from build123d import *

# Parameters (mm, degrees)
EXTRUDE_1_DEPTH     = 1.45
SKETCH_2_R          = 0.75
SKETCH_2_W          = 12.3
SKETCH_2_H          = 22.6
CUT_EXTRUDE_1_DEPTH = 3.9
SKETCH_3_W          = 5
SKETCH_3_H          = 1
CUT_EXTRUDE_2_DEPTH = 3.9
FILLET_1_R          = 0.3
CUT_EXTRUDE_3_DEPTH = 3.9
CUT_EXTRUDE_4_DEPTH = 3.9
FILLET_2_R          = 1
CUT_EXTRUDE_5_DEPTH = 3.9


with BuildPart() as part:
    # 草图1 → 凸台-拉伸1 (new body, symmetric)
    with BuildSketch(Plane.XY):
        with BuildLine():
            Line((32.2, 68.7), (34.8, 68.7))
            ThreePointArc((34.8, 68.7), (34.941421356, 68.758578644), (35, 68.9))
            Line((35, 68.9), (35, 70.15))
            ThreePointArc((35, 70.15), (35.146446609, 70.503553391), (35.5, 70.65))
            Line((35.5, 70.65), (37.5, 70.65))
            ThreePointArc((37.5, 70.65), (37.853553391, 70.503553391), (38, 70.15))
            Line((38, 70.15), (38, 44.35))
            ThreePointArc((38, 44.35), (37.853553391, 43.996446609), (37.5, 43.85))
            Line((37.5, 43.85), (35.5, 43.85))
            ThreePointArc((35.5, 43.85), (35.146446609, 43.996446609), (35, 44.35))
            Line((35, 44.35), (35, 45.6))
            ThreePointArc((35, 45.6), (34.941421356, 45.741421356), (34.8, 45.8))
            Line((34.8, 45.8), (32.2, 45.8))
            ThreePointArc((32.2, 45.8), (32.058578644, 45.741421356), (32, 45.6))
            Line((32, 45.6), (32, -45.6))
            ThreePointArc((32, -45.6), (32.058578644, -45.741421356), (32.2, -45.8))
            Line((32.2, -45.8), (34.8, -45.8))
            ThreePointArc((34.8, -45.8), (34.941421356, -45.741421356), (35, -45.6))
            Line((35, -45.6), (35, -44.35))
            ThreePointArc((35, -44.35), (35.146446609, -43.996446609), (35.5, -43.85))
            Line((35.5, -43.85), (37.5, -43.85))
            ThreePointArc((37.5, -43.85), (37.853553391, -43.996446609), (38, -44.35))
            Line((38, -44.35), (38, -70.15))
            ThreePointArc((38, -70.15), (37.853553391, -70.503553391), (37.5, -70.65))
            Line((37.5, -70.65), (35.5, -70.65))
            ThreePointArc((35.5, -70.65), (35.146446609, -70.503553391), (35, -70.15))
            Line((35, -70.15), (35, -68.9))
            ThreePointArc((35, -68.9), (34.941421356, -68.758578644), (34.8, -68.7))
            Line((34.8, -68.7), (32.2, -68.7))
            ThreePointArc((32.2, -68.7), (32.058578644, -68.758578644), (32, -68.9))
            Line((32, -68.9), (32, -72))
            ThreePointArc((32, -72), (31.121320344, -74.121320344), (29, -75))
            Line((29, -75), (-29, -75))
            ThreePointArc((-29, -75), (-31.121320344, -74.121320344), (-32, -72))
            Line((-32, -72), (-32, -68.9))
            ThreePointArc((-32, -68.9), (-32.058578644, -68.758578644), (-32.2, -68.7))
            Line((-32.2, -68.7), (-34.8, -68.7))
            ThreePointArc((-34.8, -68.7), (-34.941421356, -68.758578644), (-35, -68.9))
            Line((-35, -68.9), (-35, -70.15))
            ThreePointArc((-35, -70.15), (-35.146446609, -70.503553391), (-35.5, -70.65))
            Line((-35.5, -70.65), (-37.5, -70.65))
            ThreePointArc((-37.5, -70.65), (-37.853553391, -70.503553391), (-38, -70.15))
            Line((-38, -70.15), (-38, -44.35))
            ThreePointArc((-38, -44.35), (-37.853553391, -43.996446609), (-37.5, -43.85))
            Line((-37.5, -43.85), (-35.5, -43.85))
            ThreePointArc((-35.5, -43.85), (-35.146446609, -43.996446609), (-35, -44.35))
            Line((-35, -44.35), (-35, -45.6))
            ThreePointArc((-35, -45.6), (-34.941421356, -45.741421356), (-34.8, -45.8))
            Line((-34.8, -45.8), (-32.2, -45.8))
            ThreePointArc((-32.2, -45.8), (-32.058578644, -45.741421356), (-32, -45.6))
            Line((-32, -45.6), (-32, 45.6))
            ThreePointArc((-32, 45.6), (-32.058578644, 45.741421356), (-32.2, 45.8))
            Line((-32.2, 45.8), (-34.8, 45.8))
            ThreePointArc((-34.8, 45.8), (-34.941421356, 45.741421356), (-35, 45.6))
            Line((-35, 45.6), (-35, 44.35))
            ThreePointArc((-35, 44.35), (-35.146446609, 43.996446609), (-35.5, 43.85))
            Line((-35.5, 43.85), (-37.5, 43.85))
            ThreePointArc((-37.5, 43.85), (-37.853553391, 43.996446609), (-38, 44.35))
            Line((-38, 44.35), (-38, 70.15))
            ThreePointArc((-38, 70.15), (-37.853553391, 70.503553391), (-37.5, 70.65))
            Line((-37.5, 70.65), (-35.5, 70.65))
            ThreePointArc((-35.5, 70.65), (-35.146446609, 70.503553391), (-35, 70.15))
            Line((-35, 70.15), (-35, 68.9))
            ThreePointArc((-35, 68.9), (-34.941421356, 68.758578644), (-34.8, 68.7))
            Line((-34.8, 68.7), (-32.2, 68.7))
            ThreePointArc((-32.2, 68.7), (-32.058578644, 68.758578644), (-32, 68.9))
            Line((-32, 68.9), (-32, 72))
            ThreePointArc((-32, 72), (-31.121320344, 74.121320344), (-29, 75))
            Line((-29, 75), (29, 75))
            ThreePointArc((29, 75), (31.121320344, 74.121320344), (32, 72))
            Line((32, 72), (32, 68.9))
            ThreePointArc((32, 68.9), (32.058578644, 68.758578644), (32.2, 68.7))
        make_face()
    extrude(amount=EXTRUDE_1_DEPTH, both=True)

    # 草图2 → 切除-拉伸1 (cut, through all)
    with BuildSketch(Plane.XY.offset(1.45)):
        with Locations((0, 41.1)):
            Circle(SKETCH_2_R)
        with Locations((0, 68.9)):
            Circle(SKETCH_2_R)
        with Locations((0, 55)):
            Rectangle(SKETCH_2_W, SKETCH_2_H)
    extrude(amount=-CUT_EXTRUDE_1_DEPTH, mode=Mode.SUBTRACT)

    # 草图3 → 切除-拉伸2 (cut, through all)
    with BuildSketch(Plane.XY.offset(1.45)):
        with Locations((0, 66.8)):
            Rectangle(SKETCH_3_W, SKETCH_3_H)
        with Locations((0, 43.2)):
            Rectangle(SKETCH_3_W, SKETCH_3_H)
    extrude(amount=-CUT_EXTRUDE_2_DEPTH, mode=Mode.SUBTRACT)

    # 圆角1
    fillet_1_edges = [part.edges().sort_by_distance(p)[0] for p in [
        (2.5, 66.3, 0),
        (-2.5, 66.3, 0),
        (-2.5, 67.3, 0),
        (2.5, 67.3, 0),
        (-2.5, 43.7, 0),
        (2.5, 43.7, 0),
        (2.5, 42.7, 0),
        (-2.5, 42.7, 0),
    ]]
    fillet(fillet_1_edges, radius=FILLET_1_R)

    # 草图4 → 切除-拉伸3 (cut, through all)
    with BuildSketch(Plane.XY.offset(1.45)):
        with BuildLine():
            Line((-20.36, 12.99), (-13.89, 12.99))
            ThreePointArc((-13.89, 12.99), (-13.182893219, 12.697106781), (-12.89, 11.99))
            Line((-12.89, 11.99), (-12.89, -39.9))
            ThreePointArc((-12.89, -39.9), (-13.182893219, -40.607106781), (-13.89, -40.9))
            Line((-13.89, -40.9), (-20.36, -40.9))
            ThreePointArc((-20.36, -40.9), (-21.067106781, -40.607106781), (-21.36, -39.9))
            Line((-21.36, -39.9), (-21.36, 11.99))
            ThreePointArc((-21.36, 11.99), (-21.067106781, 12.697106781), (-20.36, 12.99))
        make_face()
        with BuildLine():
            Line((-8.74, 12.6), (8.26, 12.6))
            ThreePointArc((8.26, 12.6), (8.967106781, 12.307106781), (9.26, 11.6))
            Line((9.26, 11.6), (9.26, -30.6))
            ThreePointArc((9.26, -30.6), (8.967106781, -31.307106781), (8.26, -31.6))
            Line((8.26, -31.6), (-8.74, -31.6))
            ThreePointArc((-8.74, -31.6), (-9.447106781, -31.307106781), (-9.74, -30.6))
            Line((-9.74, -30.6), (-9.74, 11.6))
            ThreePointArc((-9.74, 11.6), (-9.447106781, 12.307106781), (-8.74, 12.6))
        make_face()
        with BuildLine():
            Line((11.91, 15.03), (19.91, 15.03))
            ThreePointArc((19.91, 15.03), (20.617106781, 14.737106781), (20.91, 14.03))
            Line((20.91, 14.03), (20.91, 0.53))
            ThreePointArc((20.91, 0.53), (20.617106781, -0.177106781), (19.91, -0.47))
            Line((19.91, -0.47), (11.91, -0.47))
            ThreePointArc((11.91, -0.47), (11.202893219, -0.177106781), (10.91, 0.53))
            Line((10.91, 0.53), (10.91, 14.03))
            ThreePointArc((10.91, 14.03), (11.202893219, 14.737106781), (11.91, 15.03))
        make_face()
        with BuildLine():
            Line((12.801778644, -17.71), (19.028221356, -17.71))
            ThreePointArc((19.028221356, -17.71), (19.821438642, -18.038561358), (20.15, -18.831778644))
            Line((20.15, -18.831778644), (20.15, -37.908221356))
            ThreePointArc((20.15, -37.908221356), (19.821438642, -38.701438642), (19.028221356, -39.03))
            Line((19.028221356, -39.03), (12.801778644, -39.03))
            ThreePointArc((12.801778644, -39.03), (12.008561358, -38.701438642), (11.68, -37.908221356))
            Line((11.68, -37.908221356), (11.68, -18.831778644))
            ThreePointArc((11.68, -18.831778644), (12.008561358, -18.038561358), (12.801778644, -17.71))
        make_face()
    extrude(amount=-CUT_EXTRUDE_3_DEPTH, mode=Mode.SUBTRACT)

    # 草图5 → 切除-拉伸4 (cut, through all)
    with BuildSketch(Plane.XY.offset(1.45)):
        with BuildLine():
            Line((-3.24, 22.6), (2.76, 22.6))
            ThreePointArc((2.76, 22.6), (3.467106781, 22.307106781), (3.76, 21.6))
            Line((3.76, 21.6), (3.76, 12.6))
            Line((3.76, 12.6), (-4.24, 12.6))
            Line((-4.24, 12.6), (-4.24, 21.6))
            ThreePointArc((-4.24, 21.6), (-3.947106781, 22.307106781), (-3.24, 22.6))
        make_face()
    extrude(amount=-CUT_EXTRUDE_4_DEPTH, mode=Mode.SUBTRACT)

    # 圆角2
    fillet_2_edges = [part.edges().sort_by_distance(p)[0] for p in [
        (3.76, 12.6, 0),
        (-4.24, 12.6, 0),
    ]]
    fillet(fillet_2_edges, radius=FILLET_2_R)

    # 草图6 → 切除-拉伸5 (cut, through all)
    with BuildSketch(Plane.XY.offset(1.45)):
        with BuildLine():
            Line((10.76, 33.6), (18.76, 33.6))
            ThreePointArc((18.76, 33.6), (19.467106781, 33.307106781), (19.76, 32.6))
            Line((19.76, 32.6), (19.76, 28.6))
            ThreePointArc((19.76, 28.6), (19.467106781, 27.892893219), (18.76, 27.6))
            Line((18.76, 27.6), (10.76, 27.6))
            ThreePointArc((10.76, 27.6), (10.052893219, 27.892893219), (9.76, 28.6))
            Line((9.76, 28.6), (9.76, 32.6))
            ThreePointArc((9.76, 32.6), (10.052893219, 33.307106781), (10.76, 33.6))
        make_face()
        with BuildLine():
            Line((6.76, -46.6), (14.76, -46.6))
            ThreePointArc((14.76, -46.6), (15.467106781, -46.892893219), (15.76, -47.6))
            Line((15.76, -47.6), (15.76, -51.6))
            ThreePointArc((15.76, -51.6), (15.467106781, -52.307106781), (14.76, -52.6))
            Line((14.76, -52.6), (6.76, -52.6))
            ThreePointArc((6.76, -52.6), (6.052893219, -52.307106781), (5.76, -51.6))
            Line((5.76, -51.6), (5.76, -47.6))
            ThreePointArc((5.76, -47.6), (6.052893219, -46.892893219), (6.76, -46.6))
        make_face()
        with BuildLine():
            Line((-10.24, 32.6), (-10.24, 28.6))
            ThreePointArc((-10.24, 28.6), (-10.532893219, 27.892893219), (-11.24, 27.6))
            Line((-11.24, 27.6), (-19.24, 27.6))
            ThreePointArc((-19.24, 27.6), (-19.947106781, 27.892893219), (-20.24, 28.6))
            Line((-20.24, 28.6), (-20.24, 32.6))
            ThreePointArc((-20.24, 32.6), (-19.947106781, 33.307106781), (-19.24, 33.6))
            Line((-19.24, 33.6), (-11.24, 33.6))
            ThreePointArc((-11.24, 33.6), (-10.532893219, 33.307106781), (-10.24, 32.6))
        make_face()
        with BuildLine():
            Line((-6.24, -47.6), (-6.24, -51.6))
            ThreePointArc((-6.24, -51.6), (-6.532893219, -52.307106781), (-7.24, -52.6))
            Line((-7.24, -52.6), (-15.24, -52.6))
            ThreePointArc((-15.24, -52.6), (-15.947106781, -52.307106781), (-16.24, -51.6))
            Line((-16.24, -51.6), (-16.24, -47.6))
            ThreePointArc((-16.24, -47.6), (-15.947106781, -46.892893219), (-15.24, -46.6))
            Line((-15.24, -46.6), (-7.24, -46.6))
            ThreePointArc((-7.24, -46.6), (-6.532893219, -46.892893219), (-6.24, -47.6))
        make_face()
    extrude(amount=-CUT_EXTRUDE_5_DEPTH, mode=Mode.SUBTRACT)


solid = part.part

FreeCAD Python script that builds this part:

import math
import FreeCAD as App
import Part
import Sketcher
Q = App.Units.Quantity


def edges_at(feature, points):
    """Names of the edges that pass closest to the given points."""
    edges = feature.Shape.Edges
    near = lambda p: min(range(len(edges)), key=lambda i: edges[i].distToShape(Part.Vertex(*p))[0])
    return sorted({f"Edge{near(p) + 1}" for p in points})

doc = App.newDocument("Part")
body = doc.addObject("PartDesign::Body", "Body")

sketch1 = body.newObject("Sketcher::SketchObject", "Sketch")
sketch1.AttachmentSupport = (doc.getObject("XY_Plane"), [""])
sketch1.MapMode = "FlatFace"
sketch1.addGeometry([
    Part.LineSegment(App.Vector(34.8, 68.7, 0), App.Vector(32.2, 68.7, 0)),
    Part.ArcOfCircle(Part.Circle(App.Vector(32.2, 68.9, 0), App.Vector(0, 0, 1), 0.2), math.radians(-180), math.radians(-90)),
    Part.LineSegment(App.Vector(32, 68.9, 0), App.Vector(32, 72, 0)),
    Part.ArcOfCircle(Part.Circle(App.Vector(29, 72, 0), App.Vector(0, 0, 1), 3), math.radians(0), math.radians(90)),
    Part.LineSegment(App.Vector(29, 75, 0), App.Vector(-29, 75, 0)),
    Part.ArcOfCircle(Part.Circle(App.Vector(-29, 72, 0), App.Vector(0, 0, 1), 3), math.radians(90), math.radians(180)),
    Part.LineSegment(App.Vector(-32, 72, 0), App.Vector(-32, 68.9, 0)),
    Part.ArcOfCircle(Part.Circle(App.Vector(-32.2, 68.9, 0), App.Vector(0, 0, 1), 0.2), math.radians(-90), math.radians(0)),
    Part.LineSegment(App.Vector(-32.2, 68.7, 0), App.Vector(-34.8, 68.7, 0)),
    Part.ArcOfCircle(Part.Circle(App.Vector(-34.8, 68.9, 0), App.Vector(0, 0, 1), 0.2), math.radians(-180), math.radians(-90)),
    Part.LineSegment(App.Vector(-35, 68.9, 0), App.Vector(-35, 70.15, 0)),
    Part.ArcOfCircle(Part.Circle(App.Vector(-35.5, 70.15, 0), App.Vector(0, 0, 1), 0.5), math.radians(0), math.radians(90)),
    Part.LineSegment(App.Vector(-35.5, 70.65, 0), App.Vector(-37.5, 70.65, 0)),
    Part.ArcOfCircle(Part.Circle(App.Vector(-37.5, 70.15, 0), App.Vector(0, 0, 1), 0.5), math.radians(90), math.radians(180)),
    Part.LineSegment(App.Vector(-38, 70.15, 0), App.Vector(-38, 44.35, 0)),
    Part.ArcOfCircle(Part.Circle(App.Vector(-37.5, 44.35, 0), App.Vector(0, 0, 1), 0.5), math.radians(180), math.radians(270)),
    Part.LineSegment(App.Vector(-37.5, 43.85, 0), App.Vector(-35.5, 43.85, 0)),
    Part.ArcOfCircle(Part.Circle(App.Vector(-35.5, 44.35, 0), App.Vector(0, 0, 1), 0.5), math.radians(-90), math.radians(0)),
    Part.LineSegment(App.Vector(-35, 44.35, 0), App.Vector(-35, 45.6, 0)),
    Part.ArcOfCircle(Part.Circle(App.Vector(-34.8, 45.6, 0), App.Vector(0, 0, 1), 0.2), math.radians(90), math.radians(180)),
    Part.LineSegment(App.Vector(-34.8, 45.8, 0), App.Vector(-32.2, 45.8, 0)),
    Part.ArcOfCircle(Part.Circle(App.Vector(-32.2, 45.6, 0), App.Vector(0, 0, 1), 0.2), math.radians(0), math.radians(90)),
    Part.LineSegment(App.Vector(-32, 45.6, 0), App.Vector(-32, -45.6, 0)),
    Part.ArcOfCircle(Part.Circle(App.Vector(-32.2, -45.6, 0), App.Vector(0, 0, 1), 0.2), math.radians(-90), math.radians(0)),
    Part.LineSegment(App.Vector(-32.2, -45.8, 0), App.Vector(-34.8, -45.8, 0)),
    Part.ArcOfCircle(Part.Circle(App.Vector(-34.8, -45.6, 0), App.Vector(0, 0, 1), 0.2), math.radians(-180), math.radians(-90)),
    Part.LineSegment(App.Vector(-35, -45.6, 0), App.Vector(-35, -44.35, 0)),
    Part.ArcOfCircle(Part.Circle(App.Vector(-35.5, -44.35, 0), App.Vector(0, 0, 1), 0.5), math.radians(0), math.radians(90)),
    Part.LineSegment(App.Vector(-35.5, -43.85, 0), App.Vector(-37.5, -43.85, 0)),
    Part.ArcOfCircle(Part.Circle(App.Vector(-37.5, -44.35, 0), App.Vector(0, 0, 1), 0.5), math.radians(90), math.radians(180)),
    Part.LineSegment(App.Vector(-38, -44.35, 0), App.Vector(-38, -70.15, 0)),
    Part.ArcOfCircle(Part.Circle(App.Vector(-37.5, -70.15, 0), App.Vector(0, 0, 1), 0.5), math.radians(180), math.radians(270)),
    Part.LineSegment(App.Vector(-37.5, -70.65, 0), App.Vector(-35.5, -70.65, 0)),
    Part.ArcOfCircle(Part.Circle(App.Vector(-35.5, -70.15, 0), App.Vector(0, 0, 1), 0.5), math.radians(-90), math.radians(0)),
    Part.LineSegment(App.Vector(-35, -70.15, 0), App.Vector(-35, -68.9, 0)),
    Part.ArcOfCircle(Part.Circle(App.Vector(-34.8, -68.9, 0), App.Vector(0, 0, 1), 0.2), math.radians(90), math.radians(180)),
    Part.LineSegment(App.Vector(-34.8, -68.7, 0), App.Vector(-32.2, -68.7, 0)),
    Part.ArcOfCircle(Part.Circle(App.Vector(-32.2, -68.9, 0), App.Vector(0, 0, 1), 0.2), math.radians(0), math.radians(90)),
    Part.LineSegment(App.Vector(-32, -68.9, 0), App.Vector(-32, -72, 0)),
    Part.ArcOfCircle(Part.Circle(App.Vector(-29, -72, 0), App.Vector(0, 0, 1), 3), math.radians(180), math.radians(270)),
    Part.LineSegment(App.Vector(-29, -75, 0), App.Vector(29, -75, 0)),
    Part.ArcOfCircle(Part.Circle(App.Vector(29, -72, 0), App.Vector(0, 0, 1), 3), math.radians(-90), math.radians(0)),
    Part.LineSegment(App.Vector(32, -72, 0), App.Vector(32, -68.9, 0)),
    Part.ArcOfCircle(Part.Circle(App.Vector(32.2, -68.9, 0), App.Vector(0, 0, 1), 0.2), math.radians(90), math.radians(180)),
    Part.LineSegment(App.Vector(32.2, -68.7, 0), App.Vector(34.8, -68.7, 0)),
    Part.ArcOfCircle(Part.Circle(App.Vector(34.8, -68.9, 0), App.Vector(0, 0, 1), 0.2), math.radians(0), math.radians(90)),
    Part.LineSegment(App.Vector(35, -68.9, 0), App.Vector(35, -70.15, 0)),
    Part.ArcOfCircle(Part.Circle(App.Vector(35.5, -70.15, 0), App.Vector(0, 0, 1), 0.5), math.radians(180), math.radians(270)),
    Part.LineSegment(App.Vector(35.5, -70.65, 0), App.Vector(37.5, -70.65, 0)),
    Part.ArcOfCircle(Part.Circle(App.Vector(37.5, -70.15, 0), App.Vector(0, 0, 1), 0.5), math.radians(-90), math.radians(0)),
    Part.LineSegment(App.Vector(38, -70.15, 0), App.Vector(38, -44.35, 0)),
    Part.ArcOfCircle(Part.Circle(App.Vector(37.5, -44.35, 0), App.Vector(0, 0, 1), 0.5), math.radians(0), math.radians(90)),
    Part.LineSegment(App.Vector(37.5, -43.85, 0), App.Vector(35.5, -43.85, 0)),
    Part.ArcOfCircle(Part.Circle(App.Vector(35.5, -44.35, 0), App.Vector(0, 0, 1), 0.5), math.radians(90), math.radians(180)),
    Part.LineSegment(App.Vector(35, -44.35, 0), App.Vector(35, -45.6, 0)),
    Part.ArcOfCircle(Part.Circle(App.Vector(34.8, -45.6, 0), App.Vector(0, 0, 1), 0.2), math.radians(-90), math.radians(0)),
    Part.LineSegment(App.Vector(34.8, -45.8, 0), App.Vector(32.2, -45.8, 0)),
    Part.ArcOfCircle(Part.Circle(App.Vector(32.2, -45.6, 0), App.Vector(0, 0, 1), 0.2), math.radians(-180), math.radians(-90)),
    Part.LineSegment(App.Vector(32, -45.6, 0), App.Vector(32, 45.6, 0)),
    Part.ArcOfCircle(Part.Circle(App.Vector(32.2, 45.6, 0), App.Vector(0, 0, 1), 0.2), math.radians(90), math.radians(180)),
    Part.LineSegment(App.Vector(32.2, 45.8, 0), App.Vector(34.8, 45.8, 0)),
    Part.ArcOfCircle(Part.Circle(App.Vector(34.8, 45.6, 0), App.Vector(0, 0, 1), 0.2), math.radians(0), math.radians(90)),
    Part.LineSegment(App.Vector(35, 45.6, 0), App.Vector(35, 44.35, 0)),
    Part.ArcOfCircle(Part.Circle(App.Vector(35.5, 44.35, 0), App.Vector(0, 0, 1), 0.5), math.radians(180), math.radians(270)),
    Part.LineSegment(App.Vector(35.5, 43.85, 0), App.Vector(37.5, 43.85, 0)),
    Part.ArcOfCircle(Part.Circle(App.Vector(37.5, 44.35, 0), App.Vector(0, 0, 1), 0.5), math.radians(-90), math.radians(0)),
    Part.LineSegment(App.Vector(38, 44.35, 0), App.Vector(38, 70.15, 0)),
    Part.ArcOfCircle(Part.Circle(App.Vector(37.5, 70.15, 0), App.Vector(0, 0, 1), 0.5), math.radians(0), math.radians(90)),
    Part.LineSegment(App.Vector(37.5, 70.65, 0), App.Vector(35.5, 70.65, 0)),
    Part.ArcOfCircle(Part.Circle(App.Vector(35.5, 70.15, 0), App.Vector(0, 0, 1), 0.5), math.radians(90), math.radians(180)),
    Part.LineSegment(App.Vector(35, 70.15, 0), App.Vector(35, 68.9, 0)),
    Part.ArcOfCircle(Part.Circle(App.Vector(34.8, 68.9, 0), App.Vector(0, 0, 1), 0.2), math.radians(-90), math.radians(0)),
], False)
sketch1.addConstraint([
    Sketcher.Constraint("Tangent", 0, 2, 1, 2),
    Sketcher.Constraint("Tangent", 1, 1, 2, 1),
    Sketcher.Constraint("Tangent", 2, 2, 3, 1),
    Sketcher.Constraint("Tangent", 3, 2, 4, 1),
    Sketcher.Constraint("Tangent", 4, 2, 5, 1),
    Sketcher.Constraint("Tangent", 5, 2, 6, 1),
    Sketcher.Constraint("Tangent", 6, 2, 7, 2),
    Sketcher.Constraint("Tangent", 7, 1, 8, 1),
    Sketcher.Constraint("Tangent", 8, 2, 9, 2),
    Sketcher.Constraint("Tangent", 9, 1, 10, 1),
    Sketcher.Constraint("Tangent", 10, 2, 11, 1),
    Sketcher.Constraint("Tangent", 11, 2, 12, 1),
    Sketcher.Constraint("Tangent", 12, 2, 13, 1),
    Sketcher.Constraint("Tangent", 13, 2, 14, 1),
    Sketcher.Constraint("Tangent", 14, 2, 15, 1),
    Sketcher.Constraint("Tangent", 15, 2, 16, 1),
    Sketcher.Constraint("Tangent", 16, 2, 17, 1),
    Sketcher.Constraint("Tangent", 17, 2, 18, 1),
    Sketcher.Constraint("Tangent", 18, 2, 19, 2),
    Sketcher.Constraint("Tangent", 19, 1, 20, 1),
    Sketcher.Constraint("Tangent", 20, 2, 21, 2),
    Sketcher.Constraint("Tangent", 21, 1, 22, 1),
    Sketcher.Constraint("Tangent", 22, 2, 23, 2),
    Sketcher.Constraint("Tangent", 23, 1, 24, 1),
    Sketcher.Constraint("Tangent", 24, 2, 25, 2),
    Sketcher.Constraint("Tangent", 25, 1, 26, 1),
    Sketcher.Constraint("Tangent", 26, 2, 27, 1),
    Sketcher.Constraint("Tangent", 27, 2, 28, 1),
    Sketcher.Constraint("Tangent", 28, 2, 29, 1),
    Sketcher.Constraint("Tangent", 29, 2, 30, 1),
    Sketcher.Constraint("Tangent", 30, 2, 31, 1),
    Sketcher.Constraint("Tangent", 31, 2, 32, 1),
    Sketcher.Constraint("Tangent", 32, 2, 33, 1),
    Sketcher.Constraint("Tangent", 33, 2, 34, 1),
    Sketcher.Constraint("Tangent", 34, 2, 35, 2),
    Sketcher.Constraint("Tangent", 35, 1, 36, 1),
    Sketcher.Constraint("Tangent", 36, 2, 37, 2),
    Sketcher.Constraint("Tangent", 37, 1, 38, 1),
    Sketcher.Constraint("Tangent", 38, 2, 39, 1),
    Sketcher.Constraint("Tangent", 39, 2, 40, 1),
    Sketcher.Constraint("Tangent", 40, 2, 41, 1),
    Sketcher.Constraint("Tangent", 41, 2, 42, 1),
    Sketcher.Constraint("Tangent", 42, 2, 43, 2),
    Sketcher.Constraint("Tangent", 43, 1, 44, 1),
    Sketcher.Constraint("Tangent", 44, 2, 45, 2),
    Sketcher.Constraint("Tangent", 45, 1, 46, 1),
    Sketcher.Constraint("Tangent", 46, 2, 47, 1),
    Sketcher.Constraint("Tangent", 47, 2, 48, 1),
    Sketcher.Constraint("Tangent", 48, 2, 49, 1),
    Sketcher.Constraint("Tangent", 49, 2, 50, 1),
    Sketcher.Constraint("Tangent", 50, 2, 51, 1),
    Sketcher.Constraint("Tangent", 51, 2, 52, 1),
    Sketcher.Constraint("Tangent", 52, 2, 53, 1),
    Sketcher.Constraint("Tangent", 53, 2, 54, 1),
    Sketcher.Constraint("Tangent", 54, 2, 55, 2),
    Sketcher.Constraint("Tangent", 55, 1, 56, 1),
    Sketcher.Constraint("Tangent", 56, 2, 57, 2),
    Sketcher.Constraint("Tangent", 57, 1, 58, 1),
    Sketcher.Constraint("Tangent", 58, 2, 59, 2),
    Sketcher.Constraint("Tangent", 59, 1, 60, 1),
    Sketcher.Constraint("Tangent", 60, 2, 61, 2),
    Sketcher.Constraint("Tangent", 61, 1, 62, 1),
    Sketcher.Constraint("Tangent", 62, 2, 63, 1),
    Sketcher.Constraint("Tangent", 63, 2, 64, 1),
    Sketcher.Constraint("Tangent", 64, 2, 65, 1),
    Sketcher.Constraint("Tangent", 65, 2, 66, 1),
    Sketcher.Constraint("Tangent", 66, 2, 67, 1),
    Sketcher.Constraint("Tangent", 67, 2, 68, 1),
    Sketcher.Constraint("Tangent", 68, 2, 69, 1),
    Sketcher.Constraint("Tangent", 69, 2, 70, 1),
    Sketcher.Constraint("Tangent", 70, 2, 71, 2),
    Sketcher.Constraint("Tangent", 71, 1, 0, 1),
    Sketcher.Constraint("Horizontal", 0),
    Sketcher.Constraint("Vertical", 2),
    Sketcher.Constraint("Horizontal", 4),
    Sketcher.Constraint("Vertical", 6),
    Sketcher.Constraint("Horizontal", 8),
    Sketcher.Constraint("Vertical", 10),
    Sketcher.Constraint("Horizontal", 12),
    Sketcher.Constraint("Vertical", 14),
    Sketcher.Constraint("Horizontal", 16),
    Sketcher.Constraint("Vertical", 18),
    Sketcher.Constraint("Horizontal", 20),
    Sketcher.Constraint("Vertical", 22),
    Sketcher.Constraint("Horizontal", 24),
    Sketcher.Constraint("Vertical", 26),
    Sketcher.Constraint("Horizontal", 28),
    Sketcher.Constraint("Vertical", 30),
    Sketcher.Constraint("Horizontal", 32),
    Sketcher.Constraint("Vertical", 34),
    Sketcher.Constraint("Horizontal", 36),
    Sketcher.Constraint("Vertical", 38),
    Sketcher.Constraint("Horizontal", 40),
    Sketcher.Constraint("Vertical", 42),
    Sketcher.Constraint("Horizontal", 44),
    Sketcher.Constraint("Vertical", 46),
    Sketcher.Constraint("Horizontal", 48),
    Sketcher.Constraint("Vertical", 50),
    Sketcher.Constraint("Horizontal", 52),
    Sketcher.Constraint("Vertical", 54),
    Sketcher.Constraint("Horizontal", 56),
    Sketcher.Constraint("Vertical", 58),
    Sketcher.Constraint("Horizontal", 60),
    Sketcher.Constraint("Vertical", 62),
    Sketcher.Constraint("Horizontal", 64),
    Sketcher.Constraint("Vertical", 66),
    Sketcher.Constraint("Horizontal", 68),
    Sketcher.Constraint("Vertical", 70),
    Sketcher.Constraint("Equal", 3, 5),
    Sketcher.Constraint("Equal", 1, 7),
    Sketcher.Constraint("Equal", 7, 9),
    Sketcher.Constraint("Equal", 11, 13),
    Sketcher.Constraint("Equal", 13, 15),
    Sketcher.Constraint("Equal", 15, 17),
    Sketcher.Constraint("Equal", 9, 19),
    Sketcher.Constraint("Equal", 19, 21),
    Sketcher.Constraint("Equal", 21, 23),
    Sketcher.Constraint("Equal", 23, 25),
    Sketcher.Constraint("Equal", 17, 27),
    Sketcher.Constraint("Equal", 27, 29),
    Sketcher.Constraint("Equal", 29, 31),
    Sketcher.Constraint("Equal", 31, 33),
    Sketcher.Constraint("Equal", 25, 35),
    Sketcher.Constraint("Equal", 35, 37),
    Sketcher.Constraint("Equal", 5, 39),
    Sketcher.Constraint("Equal", 39, 41),
    Sketcher.Constraint("Equal", 37, 43),
    Sketcher.Constraint("Equal", 43, 45),
    Sketcher.Constraint("Equal", 33, 47),
    Sketcher.Constraint("Equal", 47, 49),
    Sketcher.Constraint("Equal", 49, 51),
    Sketcher.Constraint("Equal", 51, 53),
    Sketcher.Constraint("Equal", 45, 55),
    Sketcher.Constraint("Equal", 55, 57),
    Sketcher.Constraint("Equal", 57, 59),
    Sketcher.Constraint("Equal", 59, 61),
    Sketcher.Constraint("Equal", 53, 63),
    Sketcher.Constraint("Equal", 63, 65),
    Sketcher.Constraint("Equal", 65, 67),
    Sketcher.Constraint("Equal", 67, 69),
    Sketcher.Constraint("Equal", 61, 71),
    Sketcher.Constraint("Symmetric", 1, 3, 37, 3, -1, 1),
    Sketcher.Constraint("Symmetric", 5, 3, 41, 3, -1, 1),
    Sketcher.Constraint("Symmetric", 9, 3, 45, 3, -1, 1),
    Sketcher.Constraint("Symmetric", 13, 3, 49, 3, -1, 1),
    Sketcher.Constraint("Symmetric", 17, 3, 53, 3, -1, 1),
    Sketcher.Constraint("Symmetric", 21, 3, 57, 3, -1, 1),
    Sketcher.Constraint("Symmetric", 25, 3, 61, 3, -1, 1),
    Sketcher.Constraint("Symmetric", 29, 3, 65, 3, -1, 1),
    Sketcher.Constraint("Symmetric", 33, 3, 69, 3, -1, 1),
    Sketcher.Constraint("Symmetric", 1, 3, 7, 3, -2),
    Sketcher.Constraint("Symmetric", 33, 3, 47, 3, -2),
    Sketcher.Constraint("Symmetric", 29, 3, 51, 3, -2),
    Sketcher.Constraint("Symmetric", 25, 3, 55, 3, -2),
    Sketcher.Constraint("Vertical", 11, 3, 17, 3),
    Sketcher.Constraint("Vertical", 7, 3, 21, 3),
    Sketcher.Constraint("Equal", 10, 18),
    Sketcher.Constraint("Radius", 3, Q("3 mm")),
    Sketcher.Constraint("Radius", 1, Q("0.2 mm")),
    Sketcher.Constraint("Radius", 11, Q("0.5 mm")),
    Sketcher.Constraint("DistanceX", 4, 2, 4, 1, Q("58 mm")),
    Sketcher.Constraint("DistanceX", 12, 2, 12, 1, Q("2 mm")),
    Sketcher.Constraint("DistanceX", 0, 2, 0, 1, Q("2.6 mm")),
    Sketcher.Constraint("DistanceY", 2, 1, 2, 2, Q("3.1 mm")),
    Sketcher.Constraint("DistanceY", 14, 2, 14, 1, Q("25.8 mm")),
    Sketcher.Constraint("DistanceY", 22, 2, 22, 1, Q("91.2 mm")),
    Sketcher.Constraint("DistanceY", -1, 1, 3, 3, Q("72 mm")),
])
pad1 = body.newObject("PartDesign::Pad", "Pad")
pad1.Profile = sketch1
pad1.Length = 2.9
pad1.Midplane = True

sketch2 = body.newObject("Sketcher::SketchObject", "Sketch001")
sketch2.AttachmentSupport = (doc.getObject("XY_Plane"), [""])
sketch2.MapMode = "FlatFace"
sketch2.AttachmentOffset = App.Placement(App.Vector(0, 0, 1.45), App.Rotation())
sketch2.addGeometry([
    Part.Circle(App.Vector(0, 41.1, 0), App.Vector(0, 0, 1), 0.8),
    Part.Circle(App.Vector(0, 68.9, 0), App.Vector(0, 0, 1), 0.8),
    Part.LineSegment(App.Vector(-6.2, 66.3, 0), App.Vector(-6.2, 43.7, 0)),
    Part.LineSegment(App.Vector(-6.2, 43.7, 0), App.Vector(6.2, 43.7, 0)),
    Part.LineSegment(App.Vector(6.2, 43.7, 0), App.Vector(6.2, 66.3, 0)),
    Part.LineSegment(App.Vector(6.2, 66.3, 0), App.Vector(-6.2, 66.3, 0)),
], False)
sketch2.addConstraint([
    Sketcher.Constraint("Coincident", 2, 2, 3, 1),
    Sketcher.Constraint("Coincident", 3, 2, 4, 1),
    Sketcher.Constraint("Coincident", 4, 2, 5, 1),
    Sketcher.Constraint("Coincident", 5, 2, 2, 1),
    Sketcher.Constraint("Vertical", 2),
    Sketcher.Constraint("Horizontal", 3),
    Sketcher.Constraint("Vertical", 4),
    Sketcher.Constraint("Horizontal", 5),
    Sketcher.Constraint("Equal", 0, 1),
    Sketcher.Constraint("PointOnObject", 0, 3, -2),
    Sketcher.Constraint("PointOnObject", 1, 3, -2),
    Sketcher.Constraint("Diameter", 0, Q("1.5 mm")),
    Sketcher.Constraint("DistanceX", 3, 1, 3, 2, Q("12.3 mm")),
    Sketcher.Constraint("DistanceY", 2, 2, 2, 1, Q("22.6 mm")),
    Sketcher.Constraint("DistanceY", -1, 1, 0, 3, Q("41.1 mm")),
    Sketcher.Constraint("DistanceY", -1, 1, 1, 3, Q("68.9 mm")),
    Sketcher.Constraint("DistanceY", -1, 1, 2, 2, Q("43.7 mm")),
    Sketcher.Constraint("DistanceX", 2, 2, -1, 1, Q("6.15 mm")),
])
pocket1 = body.newObject("PartDesign::Pocket", "Pocket")
pocket1.Profile = sketch2
pocket1.Type = "ThroughAll"

sketch3 = body.newObject("Sketcher::SketchObject", "Sketch002")
sketch3.AttachmentSupport = (doc.getObject("XY_Plane"), [""])
sketch3.MapMode = "FlatFace"
sketch3.AttachmentOffset = App.Placement(App.Vector(0, 0, 1.45), App.Rotation())
sketch3.addGeometry([
    Part.LineSegment(App.Vector(-2.5, 67.3, 0), App.Vector(-2.5, 66.3, 0)),
    Part.LineSegment(App.Vector(-2.5, 66.3, 0), App.Vector(2.5, 66.3, 0)),
    Part.LineSegment(App.Vector(2.5, 66.3, 0), App.Vector(2.5, 67.3, 0)),
    Part.LineSegment(App.Vector(2.5, 67.3, 0), App.Vector(-2.5, 67.3, 0)),
    Part.LineSegment(App.Vector(-2.5, 43.7, 0), App.Vector(-2.5, 42.7, 0)),
    Part.LineSegment(App.Vector(-2.5, 42.7, 0), App.Vector(2.5, 42.7, 0)),
    Part.LineSegment(App.Vector(2.5, 42.7, 0), App.Vector(2.5, 43.7, 0)),
    Part.LineSegment(App.Vector(2.5, 43.7, 0), App.Vector(-2.5, 43.7, 0)),
], False)
sketch3.addConstraint([
    Sketcher.Constraint("Coincident", 0, 2, 1, 1),
    Sketcher.Constraint("Coincident", 1, 2, 2, 1),
    Sketcher.Constraint("Coincident", 2, 2, 3, 1),
    Sketcher.Constraint("Coincident", 3, 2, 0, 1),
    Sketcher.Constraint("Coincident", 4, 2, 5, 1),
    Sketcher.Constraint("Coincident", 5, 2, 6, 1),
    Sketcher.Constraint("Coincident", 6, 2, 7, 1),
    Sketcher.Constraint("Coincident", 7, 2, 4, 1),
    Sketcher.Constraint("Vertical", 0),
    Sketcher.Constraint("Horizontal", 1),
    Sketcher.Constraint("Vertical", 2),
    Sketcher.Constraint("Horizontal", 3),
    Sketcher.Constraint("Vertical", 4),
    Sketcher.Constraint("Horizontal", 5),
    Sketcher.Constraint("Vertical", 6),
    Sketcher.Constraint("Horizontal", 7),
    Sketcher.Constraint("Vertical", 3, 2, 4, 2),
    Sketcher.Constraint("Vertical", 2, 2, 5, 2),
    Sketcher.Constraint("Equal", 2, 4),
    Sketcher.Constraint("DistanceX", 1, 1, 1, 2, Q("5 mm")),
    Sketcher.Constraint("DistanceY", 0, 2, 0, 1, Q("1 mm")),
    Sketcher.Constraint("DistanceX", 0, 2, -1, 1, Q("2.5 mm")),
    Sketcher.Constraint("DistanceY", -1, 1, 0, 2, Q("66.3 mm")),
    Sketcher.Constraint("DistanceY", -1, 1, 4, 2, Q("42.7 mm")),
])
pocket2 = body.newObject("PartDesign::Pocket", "Pocket001")
pocket2.Profile = sketch3
pocket2.Type = "ThroughAll"
doc.recompute()

fillet = body.newObject("PartDesign::Fillet", "Fillet")
fillet.Base = (pocket2, edges_at(pocket2, [
    (2.5, 66.3, 0),
    (-2.5, 66.3, 0),
    (-2.5, 67.3, 0),
    (2.5, 67.3, 0),
    (-2.5, 43.7, 0),
    (2.5, 43.7, 0),
    (2.5, 42.7, 0),
    (-2.5, 42.7, 0),
]))
fillet.Radius = 0.3

sketch4 = body.newObject("Sketcher::SketchObject", "Sketch003")
sketch4.AttachmentSupport = (doc.getObject("XY_Plane"), [""])
sketch4.MapMode = "FlatFace"
sketch4.AttachmentOffset = App.Placement(App.Vector(0, 0, 1.45), App.Rotation())
sketch4.addGeometry([
    Part.LineSegment(App.Vector(-13.9, 13, 0), App.Vector(-20.4, 13, 0)),
    Part.ArcOfCircle(Part.Circle(App.Vector(-20.4, 12, 0), App.Vector(0, 0, 1), 1), math.radians(90), math.radians(180)),
    Part.LineSegment(App.Vector(-21.4, 12, 0), App.Vector(-21.4, -39.9, 0)),
    Part.ArcOfCircle(Part.Circle(App.Vector(-20.4, -39.9, 0), App.Vector(0, 0, 1), 1), math.radians(-180), math.radians(-90)),
    Part.LineSegment(App.Vector(-20.4, -40.9, 0), App.Vector(-13.9, -40.9, 0)),
    Part.ArcOfCircle(Part.Circle(App.Vector(-13.9, -39.9, 0), App.Vector(0, 0, 1), 1), math.radians(-90), math.radians(0)),
    Part.LineSegment(App.Vector(-12.9, -39.9, 0), App.Vector(-12.9, 12, 0)),
    Part.ArcOfCircle(Part.Circle(App.Vector(-13.9, 12, 0), App.Vector(0, 0, 1), 1), math.radians(0), math.radians(90)),
    Part.LineSegment(App.Vector(8.3, 12.6, 0), App.Vector(-8.7, 12.6, 0)),
    Part.ArcOfCircle(Part.Circle(App.Vector(-8.7, 11.6, 0), App.Vector(0, 0, 1), 1), math.radians(90), math.radians(180)),
    Part.LineSegment(App.Vector(-9.7, 11.6, 0), App.Vector(-9.7, -30.6, 0)),
    Part.ArcOfCircle(Part.Circle(App.Vector(-8.7, -30.6, 0), App.Vector(0, 0, 1), 1), math.radians(-180), math.radians(-90)),
    Part.LineSegment(App.Vector(-8.7, -31.6, 0), App.Vector(8.3, -31.6, 0)),
    Part.ArcOfCircle(Part.Circle(App.Vector(8.3, -30.6, 0), App.Vector(0, 0, 1), 1), math.radians(-90), math.radians(0)),
    Part.LineSegment(App.Vector(9.3, -30.6, 0), App.Vector(9.3, 11.6, 0)),
    Part.ArcOfCircle(Part.Circle(App.Vector(8.3, 11.6, 0), App.Vector(0, 0, 1), 1), math.radians(0), math.radians(90)),
    Part.LineSegment(App.Vector(19.9, 15, 0), App.Vector(11.9, 15, 0)),
    Part.ArcOfCircle(Part.Circle(App.Vector(11.9, 14, 0), App.Vector(0, 0, 1), 1), math.radians(90), math.radians(180)),
    Part.LineSegment(App.Vector(10.9, 14, 0), App.Vector(10.9, 0.5, 0)),
    Part.ArcOfCircle(Part.Circle(App.Vector(11.9, 0.5, 0), App.Vector(0, 0, 1), 1), math.radians(-180), math.radians(-90)),
    Part.LineSegment(App.Vector(11.9, -0.5, 0), App.Vector(19.9, -0.5, 0)),
    Part.ArcOfCircle(Part.Circle(App.Vector(19.9, 0.5, 0), App.Vector(0, 0, 1), 1), math.radians(-90), math.radians(0)),
    Part.LineSegment(App.Vector(20.9, 0.5, 0), App.Vector(20.9, 14, 0)),
    Part.ArcOfCircle(Part.Circle(App.Vector(19.9, 14, 0), App.Vector(0, 0, 1), 1), math.radians(0), math.radians(90)),
    Part.LineSegment(App.Vector(19, -17.7, 0), App.Vector(12.8, -17.7, 0)),
    Part.ArcOfCircle(Part.Circle(App.Vector(12.8, -18.8, 0), App.Vector(0, 0, 1), 1.1), math.radians(90), math.radians(180)),
    Part.LineSegment(App.Vector(11.7, -18.8, 0), App.Vector(11.7, -37.9, 0)),
    Part.ArcOfCircle(Part.Circle(App.Vector(12.8, -37.9, 0), App.Vector(0, 0, 1), 1.1), math.radians(-180), math.radians(-90)),
    Part.LineSegment(App.Vector(12.8, -39, 0), App.Vector(19, -39, 0)),
    Part.ArcOfCircle(Part.Circle(App.Vector(19, -37.9, 0), App.Vector(0, 0, 1), 1.1), math.radians(-90), math.radians(0)),
    Part.LineSegment(App.Vector(20.1, -37.9, 0), App.Vector(20.1, -18.8, 0)),
    Part.ArcOfCircle(Part.Circle(App.Vector(19, -18.8, 0), App.Vector(0, 0, 1), 1.1), math.radians(0), math.radians(90)),
], False)
sketch4.addConstraint([
    Sketcher.Constraint("Tangent", 0, 2, 1, 1),
    Sketcher.Constraint("Tangent", 1, 2, 2, 1),
    Sketcher.Constraint("Tangent", 2, 2, 3, 1),
    Sketcher.Constraint("Tangent", 3, 2, 4, 1),
    Sketcher.Constraint("Tangent", 4, 2, 5, 1),
    Sketcher.Constraint("Tangent", 5, 2, 6, 1),
    Sketcher.Constraint("Tangent", 6, 2, 7, 1),
    Sketcher.Constraint("Tangent", 7, 2, 0, 1),
    Sketcher.Constraint("Tangent", 8, 2, 9, 1),
    Sketcher.Constraint("Tangent", 9, 2, 10, 1),
    Sketcher.Constraint("Tangent", 10, 2, 11, 1),
    Sketcher.Constraint("Tangent", 11, 2, 12, 1),
    Sketcher.Constraint("Tangent", 12, 2, 13, 1),
    Sketcher.Constraint("Tangent", 13, 2, 14, 1),
    Sketcher.Constraint("Tangent", 14, 2, 15, 1),
    Sketcher.Constraint("Tangent", 15, 2, 8, 1),
    Sketcher.Constraint("Tangent", 16, 2, 17, 1),
    Sketcher.Constraint("Tangent", 17, 2, 18, 1),
    Sketcher.Constraint("Tangent", 18, 2, 19, 1),
    Sketcher.Constraint("Tangent", 19, 2, 20, 1),
    Sketcher.Constraint("Tangent", 20, 2, 21, 1),
    Sketcher.Constraint("Tangent", 21, 2, 22, 1),
    Sketcher.Constraint("Tangent", 22, 2, 23, 1),
    Sketcher.Constraint("Tangent", 23, 2, 16, 1),
    Sketcher.Constraint("Tangent", 24, 2, 25, 1),
    Sketcher.Constraint("Tangent", 25, 2, 26, 1),
    Sketcher.Constraint("Tangent", 26, 2, 27, 1),
    Sketcher.Constraint("Tangent", 27, 2, 28, 1),
    Sketcher.Constraint("Tangent", 28, 2, 29, 1),
    Sketcher.Constraint("Tangent", 29, 2, 30, 1),
    Sketcher.Constraint("Tangent", 30, 2, 31, 1),
    Sketcher.Constraint("Tangent", 31, 2, 24, 1),
    Sketcher.Constraint("Horizontal", 0),
    Sketcher.Constraint("Vertical", 2),
    Sketcher.Constraint("Horizontal", 4),
    Sketcher.Constraint("Vertical", 6),
    Sketcher.Constraint("Horizontal", 8),
    Sketcher.Constraint("Vertical", 10),
    Sketcher.Constraint("Horizontal", 12),
    Sketcher.Constraint("Vertical", 14),
    Sketcher.Constraint("Horizontal", 16),
    Sketcher.Constraint("Vertical", 18),
    Sketcher.Constraint("Horizontal", 20),
    Sketcher.Constraint("Vertical", 22),
    Sketcher.Constraint("Horizontal", 24),
    Sketcher.Constraint("Vertical", 26),
    Sketcher.Constraint("Horizontal", 28),
    Sketcher.Constraint("Vertical", 30),
    Sketcher.Constraint("Equal", 1, 3),
    Sketcher.Constraint("Equal", 3, 5),
    Sketcher.Constraint("Equal", 5, 7),
    Sketcher.Constraint("Equal", 7, 9),
    Sketcher.Constraint("Equal", 9, 11),
    Sketcher.Constraint("Equal", 11, 13),
    Sketcher.Constraint("Equal", 13, 15),
    Sketcher.Constraint("Equal", 15, 17),
    Sketcher.Constraint("Equal", 17, 19),
    Sketcher.Constraint("Equal", 19, 21),
    Sketcher.Constraint("Equal", 21, 23),
    Sketcher.Constraint("Equal", 25, 27),
    Sketcher.Constraint("Equal", 27, 29),
    Sketcher.Constraint("Equal", 29, 31),
    Sketcher.Constraint("Radius", 1, Q("1 mm")),
    Sketcher.Constraint("DistanceX", 8, 2, 8, 1, Q("17 mm")),
    Sketcher.Constraint("DistanceX", 16, 2, 16, 1, Q("8 mm")),
    Sketcher.Constraint("DistanceY", 10, 2, 10, 1, Q("42.2 mm")),
    Sketcher.Constraint("DistanceY", 18, 2, 18, 1, Q("13.5 mm")),
    Sketcher.Constraint("DistanceX", 0, 2, 0, 1, Q("6.47 mm")),
    Sketcher.Constraint("DistanceY", 2, 2, 2, 1, Q("51.89 mm")),
    Sketcher.Constraint("DistanceY", 3, 3, -1, 1, Q("39.9 mm")),
    Sketcher.Constraint("DistanceY", -1, 1, 9, 3, Q("11.6 mm")),
    Sketcher.Constraint("DistanceX", 7, 3, 17, 3, Q("25.8 mm")),
    Sketcher.Constraint("DistanceX", 1, 3, -1, 1, Q("20.36 mm")),
    Sketcher.Constraint("DistanceX", 9, 3, -1, 1, Q("8.74 mm")),
    Sketcher.Constraint("DistanceY", -1, 1, 17, 3, Q("14.03 mm")),
    Sketcher.Constraint("DistanceY", 24, 2, -1, 1, Q("17.71 mm")),
    Sketcher.Constraint("DistanceX", -1, 1, 25, 2, Q("11.68 mm")),
    Sketcher.Constraint("DistanceY", 27, 2, -1, 1, Q("39.03 mm")),
    Sketcher.Constraint("DistanceX", -1, 1, 29, 2, Q("20.15 mm")),
    Sketcher.Constraint("Radius", 25, Q("1.121779 mm")),
])
pocket3 = body.newObject("PartDesign::Pocket", "Pocket002")
pocket3.Profile = sketch4
pocket3.Type = "ThroughAll"

sketch5 = body.newObject("Sketcher::SketchObject", "Sketch004")
sketch5.AttachmentSupport = (doc.getObject("XY_Plane"), [""])
sketch5.MapMode = "FlatFace"
sketch5.AttachmentOffset = App.Placement(App.Vector(0, 0, 1.45), App.Rotation())
sketch5.addGeometry([
    Part.LineSegment(App.Vector(2.8, 22.6, 0), App.Vector(-3.2, 22.6, 0)),
    Part.ArcOfCircle(Part.Circle(App.Vector(-3.2, 21.6, 0), App.Vector(0, 0, 1), 1), math.radians(90), math.radians(180)),
    Part.LineSegment(App.Vector(-4.2, 21.6, 0), App.Vector(-4.2, 12.6, 0)),
    Part.LineSegment(App.Vector(-4.2, 12.6, 0), App.Vector(3.8, 12.6, 0)),
    Part.LineSegment(App.Vector(3.8, 12.6, 0), App.Vector(3.8, 21.6, 0)),
    Part.ArcOfCircle(Part.Circle(App.Vector(2.8, 21.6, 0), App.Vector(0, 0, 1), 1), math.radians(0), math.radians(90)),
], False)
sketch5.addConstraint([
    Sketcher.Constraint("Tangent", 0, 2, 1, 1),
    Sketcher.Constraint("Tangent", 1, 2, 2, 1),
    Sketcher.Constraint("Coincident", 2, 2, 3, 1),
    Sketcher.Constraint("Coincident", 3, 2, 4, 1),
    Sketcher.Constraint("Tangent", 4, 2, 5, 1),
    Sketcher.Constraint("Tangent", 5, 2, 0, 1),
    Sketcher.Constraint("Horizontal", 0),
    Sketcher.Constraint("Vertical", 2),
    Sketcher.Constraint("Horizontal", 3),
    Sketcher.Constraint("Vertical", 4),
    Sketcher.Constraint("Equal", 1, 5),
    Sketcher.Constraint("Radius", 1, Q("1 mm")),
    Sketcher.Constraint("DistanceX", 0, 2, 0, 1, Q("6 mm")),
    Sketcher.Constraint("DistanceY", 2, 2, 2, 1, Q("9 mm")),
    Sketcher.Constraint("DistanceY", -1, 1, 1, 3, Q("21.6 mm")),
    Sketcher.Constraint("DistanceX", 1, 3, -1, 1, Q("3.24 mm")),
])
pocket4 = body.newObject("PartDesign::Pocket", "Pocket003")
pocket4.Profile = sketch5
pocket4.Type = "ThroughAll"
doc.recompute()

fillet2 = body.newObject("PartDesign::Fillet", "Fillet001")
fillet2.Base = (pocket4, edges_at(pocket4, [(3.76, 12.6, 0), (-4.24, 12.6, 0)]))
fillet2.Radius = 1

sketch6 = body.newObject("Sketcher::SketchObject", "Sketch005")
sketch6.AttachmentSupport = (doc.getObject("XY_Plane"), [""])
sketch6.MapMode = "FlatFace"
sketch6.AttachmentOffset = App.Placement(App.Vector(0, 0, 1.45), App.Rotation())
sketch6.addGeometry([
    Part.LineSegment(App.Vector(18.8, 33.6, 0), App.Vector(10.8, 33.6, 0)),
    Part.ArcOfCircle(Part.Circle(App.Vector(10.8, 32.6, 0), App.Vector(0, 0, 1), 1), math.radians(90), math.radians(180)),
    Part.LineSegment(App.Vector(9.8, 32.6, 0), App.Vector(9.8, 28.6, 0)),
    Part.ArcOfCircle(Part.Circle(App.Vector(10.8, 28.6, 0), App.Vector(0, 0, 1), 1), math.radians(-180), math.radians(-90)),
    Part.LineSegment(App.Vector(10.8, 27.6, 0), App.Vector(18.8, 27.6, 0)),
    Part.ArcOfCircle(Part.Circle(App.Vector(18.8, 28.6, 0), App.Vector(0, 0, 1), 1), math.radians(-90), math.radians(0)),
    Part.LineSegment(App.Vector(19.8, 28.6, 0), App.Vector(19.8, 32.6, 0)),
    Part.ArcOfCircle(Part.Circle(App.Vector(18.8, 32.6, 0), App.Vector(0, 0, 1), 1), math.radians(0), math.radians(90)),
    Part.LineSegment(App.Vector(14.8, -46.6, 0), App.Vector(6.8, -46.6, 0)),
    Part.ArcOfCircle(Part.Circle(App.Vector(6.8, -47.6, 0), App.Vector(0, 0, 1), 1), math.radians(90), math.radians(180)),
    Part.LineSegment(App.Vector(5.8, -47.6, 0), App.Vector(5.8, -51.6, 0)),
    Part.ArcOfCircle(Part.Circle(App.Vector(6.8, -51.6, 0), App.Vector(0, 0, 1), 1), math.radians(-180), math.radians(-90)),
    Part.LineSegment(App.Vector(6.8, -52.6, 0), App.Vector(14.8, -52.6, 0)),
    Part.ArcOfCircle(Part.Circle(App.Vector(14.8, -51.6, 0), App.Vector(0, 0, 1), 1), math.radians(-90), math.radians(0)),
    Part.LineSegment(App.Vector(15.8, -51.6, 0), App.Vector(15.8, -47.6, 0)),
    Part.ArcOfCircle(Part.Circle(App.Vector(14.8, -47.6, 0), App.Vector(0, 0, 1), 1), math.radians(0), math.radians(90)),
    Part.LineSegment(App.Vector(-10.2, 28.6, 0), App.Vector(-10.2, 32.6, 0)),
    Part.ArcOfCircle(Part.Circle(App.Vector(-11.2, 32.6, 0), App.Vector(0, 0, 1), 1), math.radians(0), math.radians(90)),
    Part.LineSegment(App.Vector(-11.2, 33.6, 0), App.Vector(-19.2, 33.6, 0)),
    Part.ArcOfCircle(Part.Circle(App.Vector(-19.2, 32.6, 0), App.Vector(0, 0, 1), 1), math.radians(90), math.radians(180)),
    Part.LineSegment(App.Vector(-20.2, 32.6, 0), App.Vector(-20.2, 28.6, 0)),
    Part.ArcOfCircle(Part.Circle(App.Vector(-19.2, 28.6, 0), App.Vector(0, 0, 1), 1), math.radians(-180), math.radians(-90)),
    Part.LineSegment(App.Vector(-19.2, 27.6, 0), App.Vector(-11.2, 27.6, 0)),
    Part.ArcOfCircle(Part.Circle(App.Vector(-11.2, 28.6, 0), App.Vector(0, 0, 1), 1), math.radians(-90), math.radians(0)),
    Part.LineSegment(App.Vector(-6.2, -51.6, 0), App.Vector(-6.2, -47.6, 0)),
    Part.ArcOfCircle(Part.Circle(App.Vector(-7.2, -47.6, 0), App.Vector(0, 0, 1), 1), math.radians(0), math.radians(90)),
    Part.LineSegment(App.Vector(-7.2, -46.6, 0), App.Vector(-15.2, -46.6, 0)),
    Part.ArcOfCircle(Part.Circle(App.Vector(-15.2, -47.6, 0), App.Vector(0, 0, 1), 1), math.radians(90), math.radians(180)),
    Part.LineSegment(App.Vector(-16.2, -47.6, 0), App.Vector(-16.2, -51.6, 0)),
    Part.ArcOfCircle(Part.Circle(App.Vector(-15.2, -51.6, 0), App.Vector(0, 0, 1), 1), math.radians(-180), math.radians(-90)),
    Part.LineSegment(App.Vector(-15.2, -52.6, 0), App.Vector(-7.2, -52.6, 0)),
    Part.ArcOfCircle(Part.Circle(App.Vector(-7.2, -51.6, 0), App.Vector(0, 0, 1), 1), math.radians(-90), math.radians(0)),
], False)
sketch6.addConstraint([
    Sketcher.Constraint("Tangent", 0, 2, 1, 1),
    Sketcher.Constraint("Tangent", 1, 2, 2, 1),
    Sketcher.Constraint("Tangent", 2, 2, 3, 1),
    Sketcher.Constraint("Tangent", 3, 2, 4, 1),
    Sketcher.Constraint("Tangent", 4, 2, 5, 1),
    Sketcher.Constraint("Tangent", 5, 2, 6, 1),
    Sketcher.Constraint("Tangent", 6, 2, 7, 1),
    Sketcher.Constraint("Tangent", 7, 2, 0, 1),
    Sketcher.Constraint("Tangent", 8, 2, 9, 1),
    Sketcher.Constraint("Tangent", 9, 2, 10, 1),
    Sketcher.Constraint("Tangent", 10, 2, 11, 1),
    Sketcher.Constraint("Tangent", 11, 2, 12, 1),
    Sketcher.Constraint("Tangent", 12, 2, 13, 1),
    Sketcher.Constraint("Tangent", 13, 2, 14, 1),
    Sketcher.Constraint("Tangent", 14, 2, 15, 1),
    Sketcher.Constraint("Tangent", 15, 2, 8, 1),
    Sketcher.Constraint("Tangent", 16, 2, 17, 1),
    Sketcher.Constraint("Tangent", 17, 2, 18, 1),
    Sketcher.Constraint("Tangent", 18, 2, 19, 1),
    Sketcher.Constraint("Tangent", 19, 2, 20, 1),
    Sketcher.Constraint("Tangent", 20, 2, 21, 1),
    Sketcher.Constraint("Tangent", 21, 2, 22, 1),
    Sketcher.Constraint("Tangent", 22, 2, 23, 1),
    Sketcher.Constraint("Tangent", 23, 2, 16, 1),
    Sketcher.Constraint("Tangent", 24, 2, 25, 1),
    Sketcher.Constraint("Tangent", 25, 2, 26, 1),
    Sketcher.Constraint("Tangent", 26, 2, 27, 1),
    Sketcher.Constraint("Tangent", 27, 2, 28, 1),
    Sketcher.Constraint("Tangent", 28, 2, 29, 1),
    Sketcher.Constraint("Tangent", 29, 2, 30, 1),
    Sketcher.Constraint("Tangent", 30, 2, 31, 1),
    Sketcher.Constraint("Tangent", 31, 2, 24, 1),
    Sketcher.Constraint("Horizontal", 0),
    Sketcher.Constraint("Vertical", 2),
    Sketcher.Constraint("Horizontal", 4),
    Sketcher.Constraint("Vertical", 6),
    Sketcher.Constraint("Horizontal", 8),
    Sketcher.Constraint("Vertical", 10),
    Sketcher.Constraint("Horizontal", 12),
    Sketcher.Constraint("Vertical", 14),
    Sketcher.Constraint("Vertical", 16),
    Sketcher.Constraint("Horizontal", 18),
    Sketcher.Constraint("Vertical", 20),
    Sketcher.Constraint("Horizontal", 22),
    Sketcher.Constraint("Vertical", 24),
    Sketcher.Constraint("Horizontal", 26),
    Sketcher.Constraint("Vertical", 28),
    Sketcher.Constraint("Horizontal", 30),
    Sketcher.Constraint("Equal", 1, 3),
    Sketcher.Constraint("Equal", 3, 5),
    Sketcher.Constraint("Equal", 5, 7),
    Sketcher.Constraint("Equal", 7, 9),
    Sketcher.Constraint("Equal", 9, 11),
    Sketcher.Constraint("Equal", 11, 13),
    Sketcher.Constraint("Equal", 13, 15),
    Sketcher.Constraint("Equal", 15, 17),
    Sketcher.Constraint("Equal", 17, 19),
    Sketcher.Constraint("Equal", 19, 21),
    Sketcher.Constraint("Equal", 21, 23),
    Sketcher.Constraint("Equal", 23, 25),
    Sketcher.Constraint("Equal", 25, 27),
    Sketcher.Constraint("Equal", 27, 29),
    Sketcher.Constraint("Equal", 29, 31),
    Sketcher.Constraint("Horizontal", 7, 3, 17, 3),
    Sketcher.Constraint("Horizontal", 5, 3, 21, 3),
    Sketcher.Constraint("Horizontal", 15, 3, 25, 3),
    Sketcher.Constraint("Horizontal", 13, 3, 29, 3),
    Sketcher.Constraint("Equal", 4, 8),
    Sketcher.Constraint("Equal", 12, 18),
    Sketcher.Constraint("Equal", 22, 26),
    Sketcher.Constraint("Equal", 6, 10),
    Sketcher.Constraint("Radius", 1, Q("1 mm")),
    Sketcher.Constraint("DistanceX", 0, 2, 0, 1, Q("8 mm")),
    Sketcher.Constraint("DistanceY", 2, 2, 2, 1, Q("4 mm")),
    Sketcher.Constraint("DistanceX", 9, 3, 3, 3, Q("4 mm")),
    Sketcher.Constraint("DistanceX", 17, 3, 1, 3, Q("22 mm")),
    Sketcher.Constraint("DistanceX", 25, 3, 9, 3, Q("14 mm")),
    Sketcher.Constraint("DistanceY", -1, 1, 1, 3, Q("32.6 mm")),
    Sketcher.Constraint("DistanceY", 9, 3, -1, 1, Q("47.6 mm")),
    Sketcher.Constraint("DistanceX", -1, 1, 1, 3, Q("10.76 mm")),
])
pocket5 = body.newObject("PartDesign::Pocket", "Pocket004")
pocket5.Profile = sketch6
pocket5.Type = "ThroughAll"

doc.recompute()
